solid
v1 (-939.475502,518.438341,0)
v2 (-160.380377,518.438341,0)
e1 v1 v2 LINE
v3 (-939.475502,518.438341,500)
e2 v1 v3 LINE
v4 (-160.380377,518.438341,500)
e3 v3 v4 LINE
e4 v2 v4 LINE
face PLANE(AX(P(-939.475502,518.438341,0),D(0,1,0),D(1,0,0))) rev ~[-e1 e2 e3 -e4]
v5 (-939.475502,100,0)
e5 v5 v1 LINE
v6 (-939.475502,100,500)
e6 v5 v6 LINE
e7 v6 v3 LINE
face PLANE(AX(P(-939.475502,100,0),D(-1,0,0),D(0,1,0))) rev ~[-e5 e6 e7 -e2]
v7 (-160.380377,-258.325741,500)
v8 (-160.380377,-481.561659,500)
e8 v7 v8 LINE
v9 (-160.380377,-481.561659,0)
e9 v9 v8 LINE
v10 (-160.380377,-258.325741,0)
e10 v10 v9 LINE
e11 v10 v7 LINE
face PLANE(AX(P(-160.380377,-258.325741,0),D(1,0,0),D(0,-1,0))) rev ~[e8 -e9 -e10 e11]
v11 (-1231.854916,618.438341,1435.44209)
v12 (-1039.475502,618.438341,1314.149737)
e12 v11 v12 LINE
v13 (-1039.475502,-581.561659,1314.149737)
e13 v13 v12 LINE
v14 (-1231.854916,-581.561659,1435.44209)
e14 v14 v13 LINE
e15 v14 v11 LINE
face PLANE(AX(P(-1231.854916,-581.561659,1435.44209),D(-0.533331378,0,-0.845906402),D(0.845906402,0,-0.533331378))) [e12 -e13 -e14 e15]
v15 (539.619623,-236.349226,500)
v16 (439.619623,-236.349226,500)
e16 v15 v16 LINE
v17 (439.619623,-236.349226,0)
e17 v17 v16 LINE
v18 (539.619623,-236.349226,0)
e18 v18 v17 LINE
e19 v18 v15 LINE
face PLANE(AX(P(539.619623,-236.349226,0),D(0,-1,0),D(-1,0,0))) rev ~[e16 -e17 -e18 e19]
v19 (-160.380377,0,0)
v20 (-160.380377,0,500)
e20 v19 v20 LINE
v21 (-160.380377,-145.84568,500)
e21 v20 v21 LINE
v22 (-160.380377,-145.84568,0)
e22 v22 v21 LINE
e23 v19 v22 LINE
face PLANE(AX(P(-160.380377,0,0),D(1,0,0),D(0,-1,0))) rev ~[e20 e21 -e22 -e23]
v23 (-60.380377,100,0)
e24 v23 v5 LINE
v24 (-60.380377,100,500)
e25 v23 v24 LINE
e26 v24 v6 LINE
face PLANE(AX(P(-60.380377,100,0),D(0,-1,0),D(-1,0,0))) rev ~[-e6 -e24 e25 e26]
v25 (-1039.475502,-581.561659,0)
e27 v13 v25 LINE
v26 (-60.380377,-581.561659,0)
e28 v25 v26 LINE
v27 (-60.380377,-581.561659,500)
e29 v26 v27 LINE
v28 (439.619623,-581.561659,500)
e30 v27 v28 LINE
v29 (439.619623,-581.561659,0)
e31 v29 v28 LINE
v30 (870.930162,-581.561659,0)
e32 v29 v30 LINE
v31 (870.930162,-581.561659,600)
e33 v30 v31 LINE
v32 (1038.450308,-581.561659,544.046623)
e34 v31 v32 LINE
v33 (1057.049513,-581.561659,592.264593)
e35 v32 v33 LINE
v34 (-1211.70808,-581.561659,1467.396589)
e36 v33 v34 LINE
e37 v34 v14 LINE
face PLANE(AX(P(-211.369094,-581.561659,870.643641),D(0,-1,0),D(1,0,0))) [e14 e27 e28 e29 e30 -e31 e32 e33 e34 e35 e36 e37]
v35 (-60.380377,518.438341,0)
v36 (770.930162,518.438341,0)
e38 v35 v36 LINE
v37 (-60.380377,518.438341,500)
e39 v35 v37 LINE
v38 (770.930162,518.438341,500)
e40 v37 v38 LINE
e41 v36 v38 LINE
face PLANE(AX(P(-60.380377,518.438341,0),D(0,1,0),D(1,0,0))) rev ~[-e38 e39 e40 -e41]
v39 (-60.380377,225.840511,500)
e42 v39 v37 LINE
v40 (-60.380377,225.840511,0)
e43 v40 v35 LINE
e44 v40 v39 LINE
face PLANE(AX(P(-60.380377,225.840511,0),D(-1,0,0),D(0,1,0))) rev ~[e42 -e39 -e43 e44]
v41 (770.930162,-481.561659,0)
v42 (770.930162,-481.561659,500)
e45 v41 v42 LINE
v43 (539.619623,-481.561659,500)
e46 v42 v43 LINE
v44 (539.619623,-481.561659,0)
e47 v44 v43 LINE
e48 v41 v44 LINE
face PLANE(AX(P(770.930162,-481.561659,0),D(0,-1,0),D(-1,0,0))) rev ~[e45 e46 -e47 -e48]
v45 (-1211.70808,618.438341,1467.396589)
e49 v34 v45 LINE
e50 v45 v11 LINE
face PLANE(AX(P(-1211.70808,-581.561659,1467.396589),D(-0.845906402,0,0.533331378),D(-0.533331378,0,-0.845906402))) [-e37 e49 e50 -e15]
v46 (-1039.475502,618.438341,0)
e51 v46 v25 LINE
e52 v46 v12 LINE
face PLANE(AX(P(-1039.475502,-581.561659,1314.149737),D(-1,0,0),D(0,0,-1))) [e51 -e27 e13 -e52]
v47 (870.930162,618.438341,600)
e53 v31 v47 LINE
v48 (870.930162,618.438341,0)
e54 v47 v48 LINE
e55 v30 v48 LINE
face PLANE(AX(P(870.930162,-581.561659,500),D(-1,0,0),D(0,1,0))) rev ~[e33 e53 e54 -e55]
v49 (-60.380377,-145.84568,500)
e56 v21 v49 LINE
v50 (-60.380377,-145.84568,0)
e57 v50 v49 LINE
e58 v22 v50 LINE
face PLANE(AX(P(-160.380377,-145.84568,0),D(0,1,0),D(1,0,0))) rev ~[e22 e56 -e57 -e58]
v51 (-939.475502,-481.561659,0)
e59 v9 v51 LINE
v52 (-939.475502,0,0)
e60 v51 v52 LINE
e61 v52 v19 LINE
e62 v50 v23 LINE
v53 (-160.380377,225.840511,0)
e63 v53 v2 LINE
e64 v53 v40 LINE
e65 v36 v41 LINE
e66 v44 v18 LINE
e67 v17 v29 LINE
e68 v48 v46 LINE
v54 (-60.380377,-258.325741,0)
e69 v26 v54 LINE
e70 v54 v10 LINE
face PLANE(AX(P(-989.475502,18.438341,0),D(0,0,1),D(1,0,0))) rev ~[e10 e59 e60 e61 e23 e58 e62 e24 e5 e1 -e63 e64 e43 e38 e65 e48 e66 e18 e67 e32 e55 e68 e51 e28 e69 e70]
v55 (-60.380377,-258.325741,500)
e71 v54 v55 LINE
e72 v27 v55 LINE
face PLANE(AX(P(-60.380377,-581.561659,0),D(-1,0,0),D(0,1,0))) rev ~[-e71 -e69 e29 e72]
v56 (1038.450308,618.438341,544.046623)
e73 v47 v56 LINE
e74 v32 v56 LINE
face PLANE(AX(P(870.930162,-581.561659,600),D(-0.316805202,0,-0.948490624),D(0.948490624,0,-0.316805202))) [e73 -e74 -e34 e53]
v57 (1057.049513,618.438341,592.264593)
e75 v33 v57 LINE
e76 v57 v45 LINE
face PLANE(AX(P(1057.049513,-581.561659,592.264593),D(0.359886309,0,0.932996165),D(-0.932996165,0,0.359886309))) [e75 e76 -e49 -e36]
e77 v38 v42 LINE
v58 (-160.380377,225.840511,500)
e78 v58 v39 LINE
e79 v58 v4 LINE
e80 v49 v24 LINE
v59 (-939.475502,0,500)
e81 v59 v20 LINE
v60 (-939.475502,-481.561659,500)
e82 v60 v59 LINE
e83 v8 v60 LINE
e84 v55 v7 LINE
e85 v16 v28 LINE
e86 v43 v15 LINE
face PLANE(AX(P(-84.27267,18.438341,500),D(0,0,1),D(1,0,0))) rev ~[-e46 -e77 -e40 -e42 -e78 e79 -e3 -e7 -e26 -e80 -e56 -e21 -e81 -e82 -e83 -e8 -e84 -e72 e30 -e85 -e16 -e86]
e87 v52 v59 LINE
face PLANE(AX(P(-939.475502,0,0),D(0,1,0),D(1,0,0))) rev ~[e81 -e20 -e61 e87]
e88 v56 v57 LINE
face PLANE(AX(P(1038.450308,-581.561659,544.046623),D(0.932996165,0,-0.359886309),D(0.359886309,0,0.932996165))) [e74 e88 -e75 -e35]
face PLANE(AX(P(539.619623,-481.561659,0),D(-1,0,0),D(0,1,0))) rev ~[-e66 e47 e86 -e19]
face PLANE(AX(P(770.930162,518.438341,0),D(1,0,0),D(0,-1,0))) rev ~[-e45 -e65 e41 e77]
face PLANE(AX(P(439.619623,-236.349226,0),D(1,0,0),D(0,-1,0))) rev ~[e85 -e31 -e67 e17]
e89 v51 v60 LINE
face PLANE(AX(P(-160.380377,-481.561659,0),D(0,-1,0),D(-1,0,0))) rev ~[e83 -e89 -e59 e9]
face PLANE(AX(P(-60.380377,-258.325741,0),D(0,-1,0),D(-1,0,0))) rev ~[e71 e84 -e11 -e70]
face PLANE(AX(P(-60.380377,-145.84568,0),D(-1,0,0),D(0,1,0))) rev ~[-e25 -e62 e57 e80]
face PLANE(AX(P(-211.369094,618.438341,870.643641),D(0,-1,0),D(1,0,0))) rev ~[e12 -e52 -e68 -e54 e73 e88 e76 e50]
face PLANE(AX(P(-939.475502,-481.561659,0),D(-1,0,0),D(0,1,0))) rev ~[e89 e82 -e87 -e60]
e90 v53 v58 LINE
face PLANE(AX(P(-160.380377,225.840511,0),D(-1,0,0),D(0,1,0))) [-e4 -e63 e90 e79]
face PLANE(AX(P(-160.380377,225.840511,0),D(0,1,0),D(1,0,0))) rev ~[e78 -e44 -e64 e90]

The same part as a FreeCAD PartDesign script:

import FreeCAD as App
import Part
import Sketcher
from FreeCAD import Vector
Q = App.Units.Quantity

doc = App.newDocument("Part")
body = doc.addObject("PartDesign::Body", "Body")

sketch1 = doc.addObject("Sketcher::SketchObject", "Sketch")
body.addObject(sketch1)
sketch1.AttachmentSupport = (doc.XY_Plane, [""])
sketch1.MapMode = "FlatFace"
sketch1.addGeometry([
    Part.LineSegment(Vector(-939, -482, 0), Vector(-939, 0, 0)),
    Part.LineSegment(Vector(-939, 0, 0), Vector(-160, 0, 0)),
    Part.LineSegment(Vector(-160, 0, 0), Vector(-160, -146, 0)),
    Part.LineSegment(Vector(-160, -146, 0), Vector(-60, -146, 0)),
    Part.LineSegment(Vector(-60, -146, 0), Vector(-60, 100, 0)),
    Part.LineSegment(Vector(-60, 100, 0), Vector(-939, 100, 0)),
    Part.LineSegment(Vector(-939, 100, 0), Vector(-939, 518, 0)),
    Part.LineSegment(Vector(-939, 518, 0), Vector(-160, 518, 0)),
    Part.LineSegment(Vector(-160, 518, 0), Vector(-160, 226, 0)),
    Part.LineSegment(Vector(-160, 226, 0), Vector(-60, 226, 0)),
    Part.LineSegment(Vector(-60, 226, 0), Vector(-60, 518, 0)),
    Part.LineSegment(Vector(-60, 518, 0), Vector(771, 518, 0)),
    Part.LineSegment(Vector(771, 518, 0), Vector(771, -482, 0)),
    Part.LineSegment(Vector(771, -482, 0), Vector(540, -482, 0)),
    Part.LineSegment(Vector(540, -482, 0), Vector(540, -236, 0)),
    Part.LineSegment(Vector(540, -236, 0), Vector(440, -236, 0)),
    Part.LineSegment(Vector(440, -236, 0), Vector(440, -582, 0)),
    Part.LineSegment(Vector(440, -582, 0), Vector(871, -582, 0)),
    Part.LineSegment(Vector(871, -582, 0), Vector(871, 618, 0)),
    Part.LineSegment(Vector(871, 618, 0), Vector(-1039, 618, 0)),
    Part.LineSegment(Vector(-1039, 618, 0), Vector(-1039, -582, 0)),
    Part.LineSegment(Vector(-1039, -582, 0), Vector(-60, -582, 0)),
    Part.LineSegment(Vector(-60, -582, 0), Vector(-60, -258, 0)),
    Part.LineSegment(Vector(-60, -258, 0), Vector(-160, -258, 0)),
    Part.LineSegment(Vector(-160, -258, 0), Vector(-160, -482, 0)),
    Part.LineSegment(Vector(-160, -482, 0), Vector(-939, -482, 0)),
], False)
sketch1.addConstraint([
    Sketcher.Constraint("Coincident", 0, 2, 1, 1),
    Sketcher.Constraint("Coincident", 1, 2, 2, 1),
    Sketcher.Constraint("Coincident", 2, 2, 3, 1),
    Sketcher.Constraint("Coincident", 3, 2, 4, 1),
    Sketcher.Constraint("Coincident", 4, 2, 5, 1),
    Sketcher.Constraint("Coincident", 5, 2, 6, 1),
    Sketcher.Constraint("Coincident", 6, 2, 7, 1),
    Sketcher.Constraint("Coincident", 7, 2, 8, 1),
    Sketcher.Constraint("Coincident", 8, 2, 9, 1),
    Sketcher.Constraint("Coincident", 9, 2, 10, 1),
    Sketcher.Constraint("Coincident", 10, 2, 11, 1),
    Sketcher.Constraint("Coincident", 11, 2, 12, 1),
    Sketcher.Constraint("Coincident", 12, 2, 13, 1),
    Sketcher.Constraint("Coincident", 13, 2, 14, 1),
    Sketcher.Constraint("Coincident", 14, 2, 15, 1),
    Sketcher.Constraint("Coincident", 15, 2, 16, 1),
    Sketcher.Constraint("Coincident", 16, 2, 17, 1),
    Sketcher.Constraint("Coincident", 17, 2, 18, 1),
    Sketcher.Constraint("Coincident", 18, 2, 19, 1),
    Sketcher.Constraint("Coincident", 19, 2, 20, 1),
    Sketcher.Constraint("Coincident", 20, 2, 21, 1),
    Sketcher.Constraint("Coincident", 21, 2, 22, 1),
    Sketcher.Constraint("Coincident", 22, 2, 23, 1),
    Sketcher.Constraint("Coincident", 23, 2, 24, 1),
    Sketcher.Constraint("Coincident", 24, 2, 25, 1),
    Sketcher.Constraint("Coincident", 25, 2, 0, 1),
    Sketcher.Constraint("Vertical", 0),
    Sketcher.Constraint("Horizontal", 1),
    Sketcher.Constraint("Vertical", 2),
    Sketcher.Constraint("Horizontal", 3),
    Sketcher.Constraint("Vertical", 4),
    Sketcher.Constraint("Horizontal", 5),
    Sketcher.Constraint("Vertical", 6),
    Sketcher.Constraint("Horizontal", 7),
    Sketcher.Constraint("Vertical", 8),
    Sketcher.Constraint("Horizontal", 9),
    Sketcher.Constraint("Vertical", 10),
    Sketcher.Constraint("Horizontal", 11),
    Sketcher.Constraint("Vertical", 12),
    Sketcher.Constraint("Horizontal", 13),
    Sketcher.Constraint("Vertical", 14),
    Sketcher.Constraint("Horizontal", 15),
    Sketcher.Constraint("Vertical", 16),
    Sketcher.Constraint("Horizontal", 17),
    Sketcher.Constraint("Vertical", 18),
    Sketcher.Constraint("Horizontal", 19),
    Sketcher.Constraint("Vertical", 20),
    Sketcher.Constraint("Horizontal", 21),
    Sketcher.Constraint("Vertical", 22),
    Sketcher.Constraint("Horizontal", 23),
    Sketcher.Constraint("Vertical", 24),
    Sketcher.Constraint("Horizontal", 25),
    Sketcher.Constraint("PointOnObject", 0, 2, -1),
    Sketcher.Constraint("Horizontal", 7, 2, 10, 2),
    Sketcher.Constraint("Horizontal", 17, 2, 20, 2),
    Sketcher.Constraint("Horizontal", 13, 2, 24, 2),
    Sketcher.Constraint("Vertical", 0, 2, 5, 2),
    Sketcher.Constraint("Vertical", 2, 2, 7, 2),
    Sketcher.Constraint("Vertical", 4, 2, 9, 2),
    Sketcher.Constraint("Vertical", 10, 2, 21, 2),
    Sketcher.Constraint("Vertical", 8, 2, 23, 2),
    Sketcher.Constraint("Equal", 9, 15),
    Sketcher.Constraint("DistanceX", 3, 1, 3, 2, Q("100 mm")),
    Sketcher.Constraint("DistanceY", 12, 2, 12, 1, Q("1000 mm")),
    Sketcher.Constraint("DistanceY", 18, 1, 18, 2, Q("1200 mm")),
    Sketcher.Constraint("DistanceY", -1, 1, 4, 2, Q("100 mm")),
    Sketcher.Constraint("DistanceX", 3, 2, 13, 2, Q("600 mm")),
    Sketcher.Constraint("DistanceY", 16, 2, 13, 2, Q("100 mm")),
    Sketcher.Constraint("DistanceX", 12, 2, 17, 2, Q("100 mm")),
    Sketcher.Constraint("DistanceX", 19, 2, 6, 2, Q("100 mm")),
    Sketcher.Constraint("DistanceX", 11, 1, 11, 2, Q("831.310539 mm")),
    Sketcher.Constraint("DistanceY", 0, 1, 0, 2, Q("481.561659 mm")),
    Sketcher.Constraint("DistanceY", 2, 2, 2, 1, Q("145.84568 mm")),
    Sketcher.Constraint("DistanceY", 8, 2, 8, 1, Q("292.59783 mm")),
    Sketcher.Constraint("DistanceX", 1, 1, 1, 2, Q("779.095125 mm")),
    Sketcher.Constraint("DistanceY", 14, 1, 14, 2, Q("245.212433 mm")),
    Sketcher.Constraint("DistanceY", 22, 1, 22, 2, Q("323.235918 mm")),
    Sketcher.Constraint("DistanceX", -1, 1, 11, 2, Q("770.930162 mm")),
])
pad1 = doc.addObject("PartDesign::Pad", "Pad")
body.addObject(pad1)
pad1.Profile = sketch1
pad1.Length = 500

sketch2 = doc.addObject("Sketcher::SketchObject", "Sketch001")
body.addObject(sketch2)
sketch2.AttachmentSupport = (doc.XY_Plane, [""])
sketch2.MapMode = "FlatFace"
sketch2.AttachmentOffset = App.Placement(Vector(0, 0, 500), App.Rotation())
sketch2.addGeometry([
    Part.LineSegment(Vector(-1039, 618, 0), Vector(-1039, -582, 0)),
    Part.LineSegment(Vector(-1039, -582, 0), Vector(871, -582, 0)),
    Part.LineSegment(Vector(871, -582, 0), Vector(871, 618, 0)),
    Part.LineSegment(Vector(871, 618, 0), Vector(-1039, 618, 0)),
], False)
sketch2.addConstraint([
    Sketcher.Constraint("Coincident", 0, 2, 1, 1),
    Sketcher.Constraint("Coincident", 1, 2, 2, 1),
    Sketcher.Constraint("Coincident", 2, 2, 3, 1),
    Sketcher.Constraint("Coincident", 3, 2, 0, 1),
    Sketcher.Constraint("Vertical", 0),
    Sketcher.Constraint("Horizontal", 1),
    Sketcher.Constraint("Vertical", 2),
    Sketcher.Constraint("Horizontal", 3),
    Sketcher.Constraint("DistanceY", 0, 2, 0, 1, Q("1200 mm")),
    Sketcher.Constraint("DistanceX", 1, 1, 1, 2, Q("1910.405664 mm")),
    Sketcher.Constraint("DistanceY", 0, 2, -1, 1, Q("581.561659 mm")),
    Sketcher.Constraint("DistanceX", -1, 1, 1, 2, Q("870.930162 mm")),
])
pad2 = doc.addObject("PartDesign::Pad", "Pad001")
body.addObject(pad2)
pad2.Profile = sketch2
pad2.Length = 100

sketch3 = doc.addObject("Sketcher::SketchObject", "Sketch002")
body.addObject(sketch3)
sketch3.AttachmentSupport = (doc.XZ_Plane, [""])
sketch3.MapMode = "FlatFace"
sketch3.AttachmentOffset = App.Placement(Vector(0, 0, 581.561659), App.Rotation())
sketch3.addGeometry([
    Part.LineSegment(Vector(-1039, 600, 0), Vector(871, 600, 0)),
    Part.LineSegment(Vector(871, 600, 0), Vector(1038, 544, 0)),
    Part.LineSegment(Vector(1038, 544, 0), Vector(1057, 592, 0)),
    Part.LineSegment(Vector(1057, 592, 0), Vector(-1212, 1467, 0)),
    Part.LineSegment(Vector(-1212, 1467, 0), Vector(-1232, 1435, 0)),
    Part.LineSegment(Vector(-1232, 1435, 0), Vector(-1039, 1314, 0)),
    Part.LineSegment(Vector(-1039, 1314, 0), Vector(-1039, 600, 0)),
], False)
sketch3.addConstraint([
    Sketcher.Constraint("Coincident", 0, 2, 1, 1),
    Sketcher.Constraint("Coincident", 1, 2, 2, 1),
    Sketcher.Constraint("Coincident", 2, 2, 3, 1),
    Sketcher.Constraint("Coincident", 3, 2, 4, 1),
    Sketcher.Constraint("Coincident", 4, 2, 5, 1),
    Sketcher.Constraint("Coincident", 5, 2, 6, 1),
    Sketcher.Constraint("Coincident", 6, 2, 0, 1),
    Sketcher.Constraint("Horizontal", 0),
    Sketcher.Constraint("Vertical", 6),
    Sketcher.Constraint("Perpendicular", 2, 3),
    Sketcher.Constraint("Perpendicular", 4, 5),
    Sketcher.Constraint("DistanceY", -1, 1, 0, 2, Q("600 mm")),
    Sketcher.Constraint("DistanceY", 4, 2, 3, 2, Q("31.954499 mm")),
    Sketcher.Constraint("Distance", 1, Q("176.617609 mm")),
    Sketcher.Constraint("Distance", 2, Q("51.68078 mm")),
    Sketcher.Constraint("Distance", 3, Q("2431.690159 mm")),
    Sketcher.Constraint("DistanceX", 0, 1, 0, 2, Q("1910.405664 mm")),
    Sketcher.Constraint("DistanceY", 6, 2, 6, 1, Q("714.149737 mm")),
    Sketcher.Constraint("DistanceX", -1, 1, 0, 2, Q("870.930162 mm")),
    Sketcher.Constraint("DistanceX", 3, 2, -1, 1, Q("1211.70808 mm")),
    Sketcher.Constraint("DistanceY", -1, 1, 3, 2, Q("1467.396589 mm")),
])
pad3 = doc.addObject("PartDesign::Pad", "Pad002")
body.addObject(pad3)
pad3.Profile = sketch3
pad3.Length = 1200
pad3.Reversed = True

doc.recompute()
